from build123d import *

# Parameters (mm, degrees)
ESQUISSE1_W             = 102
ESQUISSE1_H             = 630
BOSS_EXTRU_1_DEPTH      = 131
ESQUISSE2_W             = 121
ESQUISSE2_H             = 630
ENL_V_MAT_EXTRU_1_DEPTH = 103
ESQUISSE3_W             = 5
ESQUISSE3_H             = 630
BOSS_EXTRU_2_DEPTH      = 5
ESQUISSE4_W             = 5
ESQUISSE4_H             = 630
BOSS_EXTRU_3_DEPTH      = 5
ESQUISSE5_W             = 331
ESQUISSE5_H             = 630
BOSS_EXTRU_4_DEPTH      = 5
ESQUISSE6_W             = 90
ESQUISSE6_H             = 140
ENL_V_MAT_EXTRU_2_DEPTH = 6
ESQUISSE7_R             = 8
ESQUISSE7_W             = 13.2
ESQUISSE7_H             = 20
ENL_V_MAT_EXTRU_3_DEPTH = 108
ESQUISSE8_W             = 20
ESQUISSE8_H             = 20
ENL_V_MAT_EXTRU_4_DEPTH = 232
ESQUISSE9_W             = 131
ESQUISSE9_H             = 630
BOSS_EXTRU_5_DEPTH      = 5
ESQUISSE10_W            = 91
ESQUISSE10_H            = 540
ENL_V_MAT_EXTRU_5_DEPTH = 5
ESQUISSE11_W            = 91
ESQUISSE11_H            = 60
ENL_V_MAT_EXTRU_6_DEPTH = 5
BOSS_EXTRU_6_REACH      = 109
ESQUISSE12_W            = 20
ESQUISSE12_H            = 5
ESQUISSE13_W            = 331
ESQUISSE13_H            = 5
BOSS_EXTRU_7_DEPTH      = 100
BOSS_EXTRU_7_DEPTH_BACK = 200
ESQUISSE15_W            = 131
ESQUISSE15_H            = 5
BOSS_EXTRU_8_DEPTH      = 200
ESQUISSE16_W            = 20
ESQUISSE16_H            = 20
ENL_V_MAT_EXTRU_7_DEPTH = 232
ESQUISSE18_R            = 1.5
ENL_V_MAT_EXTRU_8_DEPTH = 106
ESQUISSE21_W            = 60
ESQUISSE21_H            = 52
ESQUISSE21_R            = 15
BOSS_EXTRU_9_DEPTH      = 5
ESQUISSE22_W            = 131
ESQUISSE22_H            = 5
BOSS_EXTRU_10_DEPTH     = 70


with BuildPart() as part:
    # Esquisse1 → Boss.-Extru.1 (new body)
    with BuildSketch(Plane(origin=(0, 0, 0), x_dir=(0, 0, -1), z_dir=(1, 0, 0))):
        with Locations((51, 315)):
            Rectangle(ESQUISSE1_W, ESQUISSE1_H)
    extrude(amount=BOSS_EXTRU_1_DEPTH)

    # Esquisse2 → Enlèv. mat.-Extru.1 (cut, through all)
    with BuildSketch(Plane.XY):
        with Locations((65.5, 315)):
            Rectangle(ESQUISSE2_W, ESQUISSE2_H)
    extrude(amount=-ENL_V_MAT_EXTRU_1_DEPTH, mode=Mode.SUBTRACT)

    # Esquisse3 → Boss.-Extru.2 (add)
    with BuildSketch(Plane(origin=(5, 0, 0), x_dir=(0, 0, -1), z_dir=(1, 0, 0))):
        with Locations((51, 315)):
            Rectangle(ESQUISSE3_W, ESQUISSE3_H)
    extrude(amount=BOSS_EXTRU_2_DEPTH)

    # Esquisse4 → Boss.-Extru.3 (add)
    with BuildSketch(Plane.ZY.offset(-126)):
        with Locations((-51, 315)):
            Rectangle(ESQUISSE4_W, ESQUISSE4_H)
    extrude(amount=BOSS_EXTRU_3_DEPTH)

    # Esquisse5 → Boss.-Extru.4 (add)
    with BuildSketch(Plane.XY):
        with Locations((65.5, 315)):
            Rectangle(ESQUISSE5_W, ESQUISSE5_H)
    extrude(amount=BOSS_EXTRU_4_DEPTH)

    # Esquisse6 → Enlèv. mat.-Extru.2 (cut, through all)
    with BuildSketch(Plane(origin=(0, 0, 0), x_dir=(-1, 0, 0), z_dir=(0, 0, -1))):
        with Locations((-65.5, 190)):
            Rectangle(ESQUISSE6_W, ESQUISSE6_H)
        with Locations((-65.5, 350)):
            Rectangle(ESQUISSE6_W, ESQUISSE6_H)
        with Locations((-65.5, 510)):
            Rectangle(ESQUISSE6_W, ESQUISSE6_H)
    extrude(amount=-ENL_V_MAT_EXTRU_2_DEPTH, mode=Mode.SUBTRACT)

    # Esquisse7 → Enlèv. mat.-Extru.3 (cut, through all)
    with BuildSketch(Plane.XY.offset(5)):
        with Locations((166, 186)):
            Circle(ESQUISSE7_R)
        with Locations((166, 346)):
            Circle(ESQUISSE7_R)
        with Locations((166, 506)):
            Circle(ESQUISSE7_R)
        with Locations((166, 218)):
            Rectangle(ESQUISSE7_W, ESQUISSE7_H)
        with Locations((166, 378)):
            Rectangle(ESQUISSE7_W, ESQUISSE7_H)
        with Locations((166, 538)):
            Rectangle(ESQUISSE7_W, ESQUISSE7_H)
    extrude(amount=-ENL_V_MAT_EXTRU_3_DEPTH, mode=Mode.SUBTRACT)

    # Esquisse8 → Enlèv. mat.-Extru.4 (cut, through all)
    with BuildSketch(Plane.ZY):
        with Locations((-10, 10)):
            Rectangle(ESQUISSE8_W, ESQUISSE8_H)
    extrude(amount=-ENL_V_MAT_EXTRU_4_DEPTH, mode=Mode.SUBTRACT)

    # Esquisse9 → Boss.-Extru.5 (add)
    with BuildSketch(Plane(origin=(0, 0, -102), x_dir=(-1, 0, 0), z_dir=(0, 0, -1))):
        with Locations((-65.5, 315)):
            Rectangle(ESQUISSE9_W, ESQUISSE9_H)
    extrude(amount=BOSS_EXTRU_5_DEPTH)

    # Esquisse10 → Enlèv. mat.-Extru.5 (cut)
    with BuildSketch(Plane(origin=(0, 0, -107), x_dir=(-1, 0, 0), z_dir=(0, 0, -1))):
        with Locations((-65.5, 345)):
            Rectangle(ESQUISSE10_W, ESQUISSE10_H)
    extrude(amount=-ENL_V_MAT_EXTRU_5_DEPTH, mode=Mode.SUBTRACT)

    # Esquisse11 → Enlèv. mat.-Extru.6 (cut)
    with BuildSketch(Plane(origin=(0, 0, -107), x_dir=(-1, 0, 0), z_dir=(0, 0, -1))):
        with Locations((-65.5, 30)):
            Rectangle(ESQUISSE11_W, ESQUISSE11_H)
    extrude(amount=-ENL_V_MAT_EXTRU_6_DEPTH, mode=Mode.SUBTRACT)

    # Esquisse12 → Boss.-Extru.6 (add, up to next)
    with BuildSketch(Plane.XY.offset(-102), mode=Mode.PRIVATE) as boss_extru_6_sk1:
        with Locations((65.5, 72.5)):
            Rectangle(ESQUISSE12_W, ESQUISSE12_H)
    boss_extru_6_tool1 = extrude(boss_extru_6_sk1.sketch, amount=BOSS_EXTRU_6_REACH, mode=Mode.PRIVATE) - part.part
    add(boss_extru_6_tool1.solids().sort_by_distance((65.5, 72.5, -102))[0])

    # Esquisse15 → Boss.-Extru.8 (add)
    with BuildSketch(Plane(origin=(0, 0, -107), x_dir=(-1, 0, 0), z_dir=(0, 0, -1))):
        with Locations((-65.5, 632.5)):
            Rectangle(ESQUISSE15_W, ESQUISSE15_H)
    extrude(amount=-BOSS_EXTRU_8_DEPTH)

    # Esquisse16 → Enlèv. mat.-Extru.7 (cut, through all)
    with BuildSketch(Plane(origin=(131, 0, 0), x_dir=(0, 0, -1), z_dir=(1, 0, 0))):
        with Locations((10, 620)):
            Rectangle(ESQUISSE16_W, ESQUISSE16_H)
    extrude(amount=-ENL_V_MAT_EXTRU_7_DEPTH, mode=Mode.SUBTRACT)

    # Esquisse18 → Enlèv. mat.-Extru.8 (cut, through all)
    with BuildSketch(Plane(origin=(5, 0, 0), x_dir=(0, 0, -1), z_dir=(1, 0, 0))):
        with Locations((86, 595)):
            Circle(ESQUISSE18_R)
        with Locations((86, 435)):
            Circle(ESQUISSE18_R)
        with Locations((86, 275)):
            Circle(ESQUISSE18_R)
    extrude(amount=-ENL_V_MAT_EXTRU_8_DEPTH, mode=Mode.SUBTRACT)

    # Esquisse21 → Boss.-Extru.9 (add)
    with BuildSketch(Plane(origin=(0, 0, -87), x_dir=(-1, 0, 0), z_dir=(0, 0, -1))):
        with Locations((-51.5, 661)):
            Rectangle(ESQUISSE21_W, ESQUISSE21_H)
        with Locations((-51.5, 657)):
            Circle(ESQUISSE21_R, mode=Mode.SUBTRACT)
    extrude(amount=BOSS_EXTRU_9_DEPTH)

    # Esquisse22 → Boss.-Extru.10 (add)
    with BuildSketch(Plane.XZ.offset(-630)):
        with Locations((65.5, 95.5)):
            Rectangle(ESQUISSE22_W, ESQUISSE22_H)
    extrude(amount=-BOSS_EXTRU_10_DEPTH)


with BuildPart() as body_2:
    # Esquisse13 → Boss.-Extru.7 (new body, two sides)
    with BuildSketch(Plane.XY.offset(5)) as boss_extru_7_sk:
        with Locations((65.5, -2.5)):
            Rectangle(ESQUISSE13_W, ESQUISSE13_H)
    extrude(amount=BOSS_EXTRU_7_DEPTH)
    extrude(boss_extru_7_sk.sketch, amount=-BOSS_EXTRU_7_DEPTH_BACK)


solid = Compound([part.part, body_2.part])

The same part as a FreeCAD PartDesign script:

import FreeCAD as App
import Part
import Sketcher

V = App.Vector


def add_polygon(sketch, points):
    """Adds a closed chain of lines whose ends are joined by coincident constraints."""
    first, n = sketch.GeometryCount, len(points)
    for a, b in zip(points, points[1:] + points[:1]):
        sketch.addGeometry(Part.LineSegment(App.Vector(*a, 0), App.Vector(*b, 0)), False)
    for i in range(n):
        sketch.addConstraint(Sketcher.Constraint("Coincident", first + i, 2, first + (i + 1) % n, 1))

doc = App.newDocument("Part")
body = doc.addObject("PartDesign::Body", "Body")
body.AllowCompound = True

# Sketch on YZ plane
sketch1 = body.newObject("Sketcher::SketchObject", "Sketch")
sketch1.AttachmentSupport = (doc.getObject("YZ_Plane"), [""])
sketch1.MapMode = "FlatFace"
add_polygon(sketch1, [(630, 0), (0, 0), (0, -102), (630, -102)])  # lines 0-3
sketch1.addConstraint([
    Sketcher.Constraint("Horizontal", 0),
    Sketcher.Constraint("Vertical", 1),
    Sketcher.Constraint("Horizontal", 2),
    Sketcher.Constraint("Vertical", 3),
    Sketcher.Constraint("Coincident", 0, 2, -1, 1),
    Sketcher.Constraint("DistanceX", 0, 2, 0, 1, 630.0),
    Sketcher.Constraint("DistanceY", 1, 2, 1, 1, 102.0),
])
pad1 = body.newObject("PartDesign::Pad", "Pad")
pad1.Profile = sketch1
pad1.Length = 131

# Sketch on XY plane
sketch2 = body.newObject("Sketcher::SketchObject", "Sketch001")
sketch2.AttachmentSupport = (doc.getObject("XY_Plane"), [""])
sketch2.MapMode = "FlatFace"
add_polygon(sketch2, [(5, 630), (5, 0), (126, 0), (126, 630)])  # lines 0-3
sketch2.addConstraint([
    Sketcher.Constraint("Vertical", 0),
    Sketcher.Constraint("Horizontal", 1),
    Sketcher.Constraint("Vertical", 2),
    Sketcher.Constraint("Horizontal", 3),
    Sketcher.Constraint("PointOnObject", 0, 2, -1),
    Sketcher.Constraint("DistanceX", 1, 1, 1, 2, 121.0),
    Sketcher.Constraint("DistanceY", 0, 2, 0, 1, 630.0),
    Sketcher.Constraint("DistanceX", -1, 1, 0, 2, 5.0),
])
pocket1 = body.newObject("PartDesign::Pocket", "Pocket")
pocket1.Profile = sketch2
pocket1.Type = "ThroughAll"

# Sketch on YZ plane
sketch3 = body.newObject("Sketcher::SketchObject", "Sketch002")
sketch3.AttachmentSupport = (doc.getObject("YZ_Plane"), [""])
sketch3.MapMode = "FlatFace"
sketch3.AttachmentOffset = App.Placement(V(0, 0, 5), App.Rotation())
add_polygon(sketch3, [(630, -48), (0, -48), (0, -54), (630, -54)])  # lines 0-3
sketch3.addConstraint([
    Sketcher.Constraint("Horizontal", 0),
    Sketcher.Constraint("Vertical", 1),
    Sketcher.Constraint("Horizontal", 2),
    Sketcher.Constraint("Vertical", 3),
    Sketcher.Constraint("PointOnObject", 0, 2, -2),
    Sketcher.Constraint("DistanceX", 0, 2, 0, 1, 630.0),
    Sketcher.Constraint("DistanceY", 1, 2, 1, 1, 5.0),
    Sketcher.Constraint("DistanceY", 0, 2, -1, 1, 48.5),
])
pad2 = body.newObject("PartDesign::Pad", "Pad001")
pad2.Profile = sketch3
pad2.Length = 5

# Sketch on YZ plane
sketch4 = body.newObject("Sketcher::SketchObject", "Sketch003")
sketch4.AttachmentSupport = (doc.getObject("YZ_Plane"), [""])
sketch4.MapMode = "FlatFace"
sketch4.AttachmentOffset = App.Placement(V(0, 0, 126), App.Rotation())
add_polygon(sketch4, [(630, -54), (0, -54), (0, -48), (630, -48)])  # lines 0-3
sketch4.addConstraint([
    Sketcher.Constraint("Horizontal", 0),
    Sketcher.Constraint("Vertical", 1),
    Sketcher.Constraint("Horizontal", 2),
    Sketcher.Constraint("Vertical", 3),
    Sketcher.Constraint("PointOnObject", 0, 2, -2),
    Sketcher.Constraint("DistanceX", 0, 2, 0, 1, 630.0),
    Sketcher.Constraint("DistanceY", 1, 1, 1, 2, 5.0),
    Sketcher.Constraint("DistanceY", 0, 2, -1, 1, 53.5),
])
pad3 = body.newObject("PartDesign::Pad", "Pad002")
pad3.Profile = sketch4
pad3.Length = 5
pad3.Reversed = True

# Sketch on XY plane
sketch5 = body.newObject("Sketcher::SketchObject", "Sketch004")
sketch5.AttachmentSupport = (doc.getObject("XY_Plane"), [""])
sketch5.MapMode = "FlatFace"
add_polygon(sketch5, [(-100, 630), (-100, 0), (231, 0), (231, 630)])  # lines 0-3
sketch5.addConstraint([
    Sketcher.Constraint("Vertical", 0),
    Sketcher.Constraint("Horizontal", 1),
    Sketcher.Constraint("Vertical", 2),
    Sketcher.Constraint("Horizontal", 3),
    Sketcher.Constraint("PointOnObject", 0, 2, -1),
    Sketcher.Constraint("DistanceX", 1, 1, 1, 2, 331.0),
    Sketcher.Constraint("DistanceY", 0, 2, 0, 1, 630.0),
    Sketcher.Constraint("DistanceX", 0, 2, -1, 1, 100.0),
])
pad4 = body.newObject("PartDesign::Pad", "Pad003")
pad4.Profile = sketch5
pad4.Length = 5

# Sketch on XY plane
sketch6 = body.newObject("Sketcher::SketchObject", "Sketch005")
sketch6.AttachmentSupport = (doc.getObject("XY_Plane"), [""])
sketch6.MapMode = "FlatFace"
add_polygon(sketch6, [(110, 260), (110, 120), (20, 120), (20, 260)])  # lines 0-3
add_polygon(sketch6, [(110, 420), (110, 280), (20, 280), (20, 420)])  # lines 4-7
add_polygon(sketch6, [(110, 580), (110, 440), (20, 440), (20, 580)])  # lines 8-11
sketch6.addConstraint([
    Sketcher.Constraint("Vertical", 0),
    Sketcher.Constraint("Horizontal", 1),
    Sketcher.Constraint("Vertical", 2),
    Sketcher.Constraint("Horizontal", 3),
    Sketcher.Constraint("Vertical", 4),
    Sketcher.Constraint("Horizontal", 5),
    Sketcher.Constraint("Vertical", 6),
    Sketcher.Constraint("Horizontal", 7),
    Sketcher.Constraint("Vertical", 8),
    Sketcher.Constraint("Horizontal", 9),
    Sketcher.Constraint("Vertical", 10),
    Sketcher.Constraint("Horizontal", 11),
    Sketcher.Constraint("Vertical", 3, 2, 4, 2),
    Sketcher.Constraint("Vertical", 2, 2, 5, 2),
    Sketcher.Constraint("Vertical", 7, 2, 8, 2),
    Sketcher.Constraint("Vertical", 6, 2, 9, 2),
    Sketcher.Constraint("Equal", 2, 4),
    Sketcher.Constraint("Equal", 6, 8),
    Sketcher.Constraint("DistanceX", 1, 2, 1, 1, 90.0),
    Sketcher.Constraint("DistanceY", 0, 2, 0, 1, 140.0),
    Sketcher.Constraint("DistanceY", -1, 1, 0, 2, 120.0),
    Sketcher.Constraint("DistanceY", -1, 1, 4, 2, 280.0),
    Sketcher.Constraint("DistanceY", -1, 1, 8, 2, 440.0),
    Sketcher.Constraint("DistanceX", -1, 1, 0, 2, 110.5),
])
pocket2 = body.newObject("PartDesign::Pocket", "Pocket001")
pocket2.Profile = sketch6
pocket2.Type = "ThroughAll"
pocket2.Reversed = True

# Sketch on XY plane
sketch7 = body.newObject("Sketcher::SketchObject", "Sketch006")
sketch7.AttachmentSupport = (doc.getObject("XY_Plane"), [""])
sketch7.MapMode = "FlatFace"
sketch7.AttachmentOffset = App.Placement(V(0, 0, 5), App.Rotation())
sketch7.addGeometry(Part.Circle(V(166, 186, 0), V(0, 0, 1), 8), False)  # 0
sketch7.addGeometry(Part.Circle(V(166, 346, 0), V(0, 0, 1), 8), False)  # 1
sketch7.addGeometry(Part.Circle(V(166, 506, 0), V(0, 0, 1), 8), False)  # 2
add_polygon(sketch7, [(159, 228), (159, 208), (173, 208), (173, 228)])  # lines 3-6
add_polygon(sketch7, [(159, 388), (159, 368), (173, 368), (173, 388)])  # lines 7-10
add_polygon(sketch7, [(159, 548), (159, 528), (173, 528), (173, 548)])  # lines 11-14
sketch7.addConstraint([
    Sketcher.Constraint("Vertical", 3),
    Sketcher.Constraint("Horizontal", 4),
    Sketcher.Constraint("Vertical", 5),
    Sketcher.Constraint("Horizontal", 6),
    Sketcher.Constraint("Vertical", 7),
    Sketcher.Constraint("Horizontal", 8),
    Sketcher.Constraint("Vertical", 9),
    Sketcher.Constraint("Horizontal", 10),
    Sketcher.Constraint("Vertical", 11),
    Sketcher.Constraint("Horizontal", 12),
    Sketcher.Constraint("Vertical", 13),
    Sketcher.Constraint("Horizontal", 14),
    Sketcher.Constraint("Equal", 0, 1),
    Sketcher.Constraint("Equal", 1, 2),
    Sketcher.Constraint("Vertical", 0, 3, 1, 3),
    Sketcher.Constraint("Vertical", 1, 3, 2, 3),
    Sketcher.Constraint("Vertical", 6, 2, 7, 2),
    Sketcher.Constraint("Vertical", 5, 2, 8, 2),
    Sketcher.Constraint("Vertical", 10, 2, 11, 2),
    Sketcher.Constraint("Vertical", 9, 2, 12, 2),
    Sketcher.Constraint("Equal", 5, 7),
    Sketcher.Constraint("Equal", 9, 11),
    Sketcher.Constraint("Diameter", 0, 16.0),
    Sketcher.Constraint("DistanceY", 3, 2, 3, 1, 20.0),
    Sketcher.Constraint("DistanceX", 4, 1, 4, 2, 13.2),
    Sketcher.Constraint("DistanceX", -1, 1, 0, 3, 166.0),
    Sketcher.Constraint("DistanceY", -1, 1, 0, 3, 186.0),
    Sketcher.Constraint("DistanceY", -1, 1, 1, 3, 346.0),
    Sketcher.Constraint("DistanceY", -1, 1, 2, 3, 506.0),
    Sketcher.Constraint("DistanceY", -1, 1, 3, 2, 208.0),
    Sketcher.Constraint("DistanceY", -1, 1, 7, 2, 368.0),
    Sketcher.Constraint("DistanceY", -1, 1, 11, 2, 528.0),
    Sketcher.Constraint("DistanceX", -1, 1, 3, 2, 159.4),
])
pocket3 = body.newObject("PartDesign::Pocket", "Pocket002")
pocket3.Profile = sketch7
pocket3.Type = "ThroughAll"

# Sketch on YZ plane
sketch8 = body.newObject("Sketcher::SketchObject", "Sketch007")
sketch8.AttachmentSupport = (doc.getObject("YZ_Plane"), [""])
sketch8.MapMode = "FlatFace"
add_polygon(sketch8, [(20, -20), (0, -20), (0, 0), (20, 0)])  # lines 0-3
sketch8.addConstraint([
    Sketcher.Constraint("Horizontal", 0),
    Sketcher.Constraint("Vertical", 1),
    Sketcher.Constraint("Horizontal", 2),
    Sketcher.Constraint("Vertical", 3),
    Sketcher.Constraint("Coincident", 1, 2, -1, 1),
    Sketcher.Constraint("Equal", 2, 1),
    Sketcher.Constraint("DistanceX", 0, 2, 0, 1, 20.0),
])
pocket4 = body.newObject("PartDesign::Pocket", "Pocket003")
pocket4.Profile = sketch8
pocket4.Type = "ThroughAll"
pocket4.Reversed = True

# Sketch on XY plane
sketch9 = body.newObject("Sketcher::SketchObject", "Sketch008")
sketch9.AttachmentSupport = (doc.getObject("XY_Plane"), [""])
sketch9.MapMode = "FlatFace"
sketch9.AttachmentOffset = App.Placement(V(0, 0, -102), App.Rotation())
add_polygon(sketch9, [(131, 630), (131, 0), (0, 0), (0, 630)])  # lines 0-3
sketch9.addConstraint([
    Sketcher.Constraint("Vertical", 0),
    Sketcher.Constraint("Horizontal", 1),
    Sketcher.Constraint("Vertical", 2),
    Sketcher.Constraint("Horizontal", 3),
    Sketcher.Constraint("Coincident", 1, 2, -1, 1),
    Sketcher.Constraint("DistanceX", 1, 2, 1, 1, 131.0),
    Sketcher.Constraint("DistanceY", 0, 2, 0, 1, 630.0),
])
pad5 = body.newObject("PartDesign::Pad", "Pad004")
pad5.Profile = sketch9
pad5.Length = 5
pad5.Reversed = True

# Sketch on XY plane
sketch10 = body.newObject("Sketcher::SketchObject", "Sketch009")
sketch10.AttachmentSupport = (doc.getObject("XY_Plane"), [""])
sketch10.MapMode = "FlatFace"
sketch10.AttachmentOffset = App.Placement(V(0, 0, -107), App.Rotation())
add_polygon(sketch10, [(111, 615), (111, 75), (20, 75), (20, 615)])  # lines 0-3
sketch10.addConstraint([
    Sketcher.Constraint("Vertical", 0),
    Sketcher.Constraint("Horizontal", 1),
    Sketcher.Constraint("Vertical", 2),
    Sketcher.Constraint("Horizontal", 3),
    Sketcher.Constraint("DistanceX", 1, 2, 1, 1, 91.0),
    Sketcher.Constraint("DistanceY", 0, 2, 0, 1, 540.0),
    Sketcher.Constraint("DistanceX", -1, 1, 0, 2, 111.0),
    Sketcher.Constraint("DistanceY", -1, 1, 0, 2, 75.0),
])
pocket5 = body.newObject("PartDesign::Pocket", "Pocket004")
pocket5.Profile = sketch10
pocket5.Length = 5
pocket5.Reversed = True

# Sketch on XY plane
sketch11 = body.newObject("Sketcher::SketchObject", "Sketch010")
sketch11.AttachmentSupport = (doc.getObject("XY_Plane"), [""])
sketch11.MapMode = "FlatFace"
sketch11.AttachmentOffset = App.Placement(V(0, 0, -107), App.Rotation())
add_polygon(sketch11, [(111, 60), (111, 0), (20, 0), (20, 60)])  # lines 0-3
sketch11.addConstraint([
    Sketcher.Constraint("Vertical", 0),
    Sketcher.Constraint("Horizontal", 1),
    Sketcher.Constraint("Vertical", 2),
    Sketcher.Constraint("Horizontal", 3),
    Sketcher.Constraint("PointOnObject", 0, 2, -1),
    Sketcher.Constraint("DistanceX", 1, 2, 1, 1, 91.0),
    Sketcher.Constraint("DistanceY", 0, 2, 0, 1, 60.0),
    Sketcher.Constraint("DistanceX", -1, 1, 0, 2, 111.0),
])
pocket6 = body.newObject("PartDesign::Pocket", "Pocket005")
pocket6.Profile = sketch11
pocket6.Length = 5
pocket6.Reversed = True

# Sketch on XY plane
sketch12 = body.newObject("Sketcher::SketchObject", "Sketch011")
sketch12.AttachmentSupport = (doc.getObject("XY_Plane"), [""])
sketch12.MapMode = "FlatFace"
sketch12.AttachmentOffset = App.Placement(V(0, 0, -102), App.Rotation())
add_polygon(sketch12, [(56, 75), (56, 70), (76, 70), (76, 75)])  # lines 0-3
sketch12.addConstraint([
    Sketcher.Constraint("Vertical", 0),
    Sketcher.Constraint("Horizontal", 1),
    Sketcher.Constraint("Vertical", 2),
    Sketcher.Constraint("Horizontal", 3),
    Sketcher.Constraint("DistanceX", 1, 1, 1, 2, 20.0),
    Sketcher.Constraint("DistanceY", 0, 2, 0, 1, 5.0),
    Sketcher.Constraint("DistanceY", -1, 1, 0, 2, 70.0),
    Sketcher.Constraint("DistanceX", -1, 1, 0, 2, 55.5),
])
pad6 = body.newObject("PartDesign::Pad", "Pad005")
pad6.Profile = sketch12
pad6.Type = "UpToFirst"

# Sketch on XY plane
sketch13 = body.newObject("Sketcher::SketchObject", "Sketch012")
sketch13.AttachmentSupport = (doc.getObject("XY_Plane"), [""])
sketch13.MapMode = "FlatFace"
sketch13.AttachmentOffset = App.Placement(V(0, 0, -107), App.Rotation())
add_polygon(sketch13, [(131, 635), (131, 630), (0, 630), (0, 635)])  # lines 0-3
sketch13.addConstraint([
    Sketcher.Constraint("Vertical", 0),
    Sketcher.Constraint("Horizontal", 1),
    Sketcher.Constraint("Vertical", 2),
    Sketcher.Constraint("Horizontal", 3),
    Sketcher.Constraint("PointOnObject", 1, 2, -2),
    Sketcher.Constraint("DistanceX", 1, 2, 1, 1, 131.0),
    Sketcher.Constraint("DistanceY", 0, 2, 0, 1, 5.0),
    Sketcher.Constraint("DistanceY", -1, 1, 0, 2, 630.0),
])
pad7 = body.newObject("PartDesign::Pad", "Pad006")
pad7.Profile = sketch13
pad7.Length = 200

# Sketch on YZ plane
sketch14 = body.newObject("Sketcher::SketchObject", "Sketch013")
sketch14.AttachmentSupport = (doc.getObject("YZ_Plane"), [""])
sketch14.MapMode = "FlatFace"
sketch14.AttachmentOffset = App.Placement(V(0, 0, 131), App.Rotation())
add_polygon(sketch14, [(630, 0), (610, 0), (610, -20), (630, -20)])  # lines 0-3
sketch14.addConstraint([
    Sketcher.Constraint("Horizontal", 0),
    Sketcher.Constraint("Vertical", 1),
    Sketcher.Constraint("Horizontal", 2),
    Sketcher.Constraint("Vertical", 3),
    Sketcher.Constraint("PointOnObject", 0, 2, -1),
    Sketcher.Constraint("Equal", 2, 1),
    Sketcher.Constraint("DistanceX", 0, 2, 0, 1, 20.0),
    Sketcher.Constraint("DistanceX", -1, 1, 0, 2, 610.0),
])
pocket7 = body.newObject("PartDesign::Pocket", "Pocket006")
pocket7.Profile = sketch14
pocket7.Type = "ThroughAll"

# Sketch on YZ plane
sketch15 = body.newObject("Sketcher::SketchObject", "Sketch014")
sketch15.AttachmentSupport = (doc.getObject("YZ_Plane"), [""])
sketch15.MapMode = "FlatFace"
sketch15.AttachmentOffset = App.Placement(V(0, 0, 5), App.Rotation())
sketch15.addGeometry([
    Part.Circle(V(595, -86, 0), V(0, 0, 1), 1.5),
    Part.Circle(V(435, -86, 0), V(0, 0, 1), 1.5),
    Part.Circle(V(275, -86, 0), V(0, 0, 1), 1.5),
], False)
sketch15.addConstraint([
    Sketcher.Constraint("Equal", 0, 1),
    Sketcher.Constraint("Equal", 1, 2),
    Sketcher.Constraint("Horizontal", 0, 3, 1, 3),
    Sketcher.Constraint("Horizontal", 1, 3, 2, 3),
    Sketcher.Constraint("Diameter", 0, 3.0),
    Sketcher.Constraint("DistanceX", -1, 1, 0, 3, 595.0),
    Sketcher.Constraint("DistanceY", 0, 3, -1, 1, 86.0),
    Sketcher.Constraint("DistanceX", -1, 1, 1, 3, 435.0),
    Sketcher.Constraint("DistanceX", -1, 1, 2, 3, 275.0),
])
pocket8 = body.newObject("PartDesign::Pocket", "Pocket007")
pocket8.Profile = sketch15
pocket8.Type = "ThroughAll"

# Sketch on XY plane
sketch16 = body.newObject("Sketcher::SketchObject", "Sketch015")
sketch16.AttachmentSupport = (doc.getObject("XY_Plane"), [""])
sketch16.MapMode = "FlatFace"
sketch16.AttachmentOffset = App.Placement(V(0, 0, -87), App.Rotation())
add_polygon(sketch16, [(82, 687), (82, 635), (22, 635), (22, 687)])  # lines 0-3
sketch16.addGeometry(Part.Circle(V(52, 657, 0), V(0, 0, 1), 15), False)  # 4
sketch16.addConstraint([
    Sketcher.Constraint("Vertical", 0),
    Sketcher.Constraint("Horizontal", 1),
    Sketcher.Constraint("Vertical", 2),
    Sketcher.Constraint("Horizontal", 3),
    Sketcher.Constraint("Diameter", 4, 30.0),
    Sketcher.Constraint("DistanceX", 1, 2, 1, 1, 60.0),
    Sketcher.Constraint("DistanceY", 0, 2, 0, 1, 52.0),
    Sketcher.Constraint("DistanceY", -1, 1, 4, 3, 657.0),
    Sketcher.Constraint("DistanceY", -1, 1, 0, 2, 635.0),
    Sketcher.Constraint("DistanceX", 4, 3, 0, 2, 30.0),
    Sketcher.Constraint("DistanceX", -1, 1, 4, 3, 51.5),
])
pad8 = body.newObject("PartDesign::Pad", "Pad007")
pad8.Profile = sketch16
pad8.Length = 5
pad8.Reversed = True

# Sketch on XZ plane
sketch17 = body.newObject("Sketcher::SketchObject", "Sketch016")
sketch17.AttachmentSupport = (doc.getObject("XZ_Plane"), [""])
sketch17.MapMode = "FlatFace"
sketch17.AttachmentOffset = App.Placement(V(0, 0, -630), App.Rotation())
add_polygon(sketch17, [(0, 98), (0, 93), (131, 93), (131, 98)])  # lines 0-3
sketch17.addConstraint([
    Sketcher.Constraint("Vertical", 0),
    Sketcher.Constraint("Horizontal", 1),
    Sketcher.Constraint("Vertical", 2),
    Sketcher.Constraint("Horizontal", 3),
    Sketcher.Constraint("PointOnObject", 0, 2, -2),
    Sketcher.Constraint("DistanceX", 1, 1, 1, 2, 131.0),
    Sketcher.Constraint("DistanceY", 0, 2, 0, 1, 5.0),
    Sketcher.Constraint("DistanceY", -1, 1, 0, 2, 93.0),
])
pad9 = body.newObject("PartDesign::Pad", "Pad008")
pad9.Profile = sketch17
pad9.Length = 70
pad9.Reversed = True
body2 = doc.addObject("PartDesign::Body", "Body001")

# Sketch on XY plane
sketch18 = body2.newObject("Sketcher::SketchObject", "Sketch017")
sketch18.AttachmentSupport = (doc.getObject("XY_Plane001"), [""])
sketch18.MapMode = "FlatFace"
sketch18.AttachmentOffset = App.Placement(V(0, 0, 5), App.Rotation())
add_polygon(sketch18, [(-100, 0), (-100, -5), (231, -5), (231, 0)])  # lines 0-3
sketch18.addConstraint([
    Sketcher.Constraint("Vertical", 0),
    Sketcher.Constraint("Horizontal", 1),
    Sketcher.Constraint("Vertical", 2),
    Sketcher.Constraint("Horizontal", 3),
    Sketcher.Constraint("PointOnObject", 2, 2, -1),
    Sketcher.Constraint("DistanceX", 1, 1, 1, 2, 331.0),
    Sketcher.Constraint("DistanceY", 0, 2, 0, 1, 5.0),
    Sketcher.Constraint("DistanceX", 0, 2, -1, 1, 100.0),
])
pad10 = body2.newObject("PartDesign::Pad", "Pad009")
pad10.Profile = sketch18
pad10.Type = "TwoLengths"
pad10.Length = 100
pad10.Length2 = 200

doc.recompute()
